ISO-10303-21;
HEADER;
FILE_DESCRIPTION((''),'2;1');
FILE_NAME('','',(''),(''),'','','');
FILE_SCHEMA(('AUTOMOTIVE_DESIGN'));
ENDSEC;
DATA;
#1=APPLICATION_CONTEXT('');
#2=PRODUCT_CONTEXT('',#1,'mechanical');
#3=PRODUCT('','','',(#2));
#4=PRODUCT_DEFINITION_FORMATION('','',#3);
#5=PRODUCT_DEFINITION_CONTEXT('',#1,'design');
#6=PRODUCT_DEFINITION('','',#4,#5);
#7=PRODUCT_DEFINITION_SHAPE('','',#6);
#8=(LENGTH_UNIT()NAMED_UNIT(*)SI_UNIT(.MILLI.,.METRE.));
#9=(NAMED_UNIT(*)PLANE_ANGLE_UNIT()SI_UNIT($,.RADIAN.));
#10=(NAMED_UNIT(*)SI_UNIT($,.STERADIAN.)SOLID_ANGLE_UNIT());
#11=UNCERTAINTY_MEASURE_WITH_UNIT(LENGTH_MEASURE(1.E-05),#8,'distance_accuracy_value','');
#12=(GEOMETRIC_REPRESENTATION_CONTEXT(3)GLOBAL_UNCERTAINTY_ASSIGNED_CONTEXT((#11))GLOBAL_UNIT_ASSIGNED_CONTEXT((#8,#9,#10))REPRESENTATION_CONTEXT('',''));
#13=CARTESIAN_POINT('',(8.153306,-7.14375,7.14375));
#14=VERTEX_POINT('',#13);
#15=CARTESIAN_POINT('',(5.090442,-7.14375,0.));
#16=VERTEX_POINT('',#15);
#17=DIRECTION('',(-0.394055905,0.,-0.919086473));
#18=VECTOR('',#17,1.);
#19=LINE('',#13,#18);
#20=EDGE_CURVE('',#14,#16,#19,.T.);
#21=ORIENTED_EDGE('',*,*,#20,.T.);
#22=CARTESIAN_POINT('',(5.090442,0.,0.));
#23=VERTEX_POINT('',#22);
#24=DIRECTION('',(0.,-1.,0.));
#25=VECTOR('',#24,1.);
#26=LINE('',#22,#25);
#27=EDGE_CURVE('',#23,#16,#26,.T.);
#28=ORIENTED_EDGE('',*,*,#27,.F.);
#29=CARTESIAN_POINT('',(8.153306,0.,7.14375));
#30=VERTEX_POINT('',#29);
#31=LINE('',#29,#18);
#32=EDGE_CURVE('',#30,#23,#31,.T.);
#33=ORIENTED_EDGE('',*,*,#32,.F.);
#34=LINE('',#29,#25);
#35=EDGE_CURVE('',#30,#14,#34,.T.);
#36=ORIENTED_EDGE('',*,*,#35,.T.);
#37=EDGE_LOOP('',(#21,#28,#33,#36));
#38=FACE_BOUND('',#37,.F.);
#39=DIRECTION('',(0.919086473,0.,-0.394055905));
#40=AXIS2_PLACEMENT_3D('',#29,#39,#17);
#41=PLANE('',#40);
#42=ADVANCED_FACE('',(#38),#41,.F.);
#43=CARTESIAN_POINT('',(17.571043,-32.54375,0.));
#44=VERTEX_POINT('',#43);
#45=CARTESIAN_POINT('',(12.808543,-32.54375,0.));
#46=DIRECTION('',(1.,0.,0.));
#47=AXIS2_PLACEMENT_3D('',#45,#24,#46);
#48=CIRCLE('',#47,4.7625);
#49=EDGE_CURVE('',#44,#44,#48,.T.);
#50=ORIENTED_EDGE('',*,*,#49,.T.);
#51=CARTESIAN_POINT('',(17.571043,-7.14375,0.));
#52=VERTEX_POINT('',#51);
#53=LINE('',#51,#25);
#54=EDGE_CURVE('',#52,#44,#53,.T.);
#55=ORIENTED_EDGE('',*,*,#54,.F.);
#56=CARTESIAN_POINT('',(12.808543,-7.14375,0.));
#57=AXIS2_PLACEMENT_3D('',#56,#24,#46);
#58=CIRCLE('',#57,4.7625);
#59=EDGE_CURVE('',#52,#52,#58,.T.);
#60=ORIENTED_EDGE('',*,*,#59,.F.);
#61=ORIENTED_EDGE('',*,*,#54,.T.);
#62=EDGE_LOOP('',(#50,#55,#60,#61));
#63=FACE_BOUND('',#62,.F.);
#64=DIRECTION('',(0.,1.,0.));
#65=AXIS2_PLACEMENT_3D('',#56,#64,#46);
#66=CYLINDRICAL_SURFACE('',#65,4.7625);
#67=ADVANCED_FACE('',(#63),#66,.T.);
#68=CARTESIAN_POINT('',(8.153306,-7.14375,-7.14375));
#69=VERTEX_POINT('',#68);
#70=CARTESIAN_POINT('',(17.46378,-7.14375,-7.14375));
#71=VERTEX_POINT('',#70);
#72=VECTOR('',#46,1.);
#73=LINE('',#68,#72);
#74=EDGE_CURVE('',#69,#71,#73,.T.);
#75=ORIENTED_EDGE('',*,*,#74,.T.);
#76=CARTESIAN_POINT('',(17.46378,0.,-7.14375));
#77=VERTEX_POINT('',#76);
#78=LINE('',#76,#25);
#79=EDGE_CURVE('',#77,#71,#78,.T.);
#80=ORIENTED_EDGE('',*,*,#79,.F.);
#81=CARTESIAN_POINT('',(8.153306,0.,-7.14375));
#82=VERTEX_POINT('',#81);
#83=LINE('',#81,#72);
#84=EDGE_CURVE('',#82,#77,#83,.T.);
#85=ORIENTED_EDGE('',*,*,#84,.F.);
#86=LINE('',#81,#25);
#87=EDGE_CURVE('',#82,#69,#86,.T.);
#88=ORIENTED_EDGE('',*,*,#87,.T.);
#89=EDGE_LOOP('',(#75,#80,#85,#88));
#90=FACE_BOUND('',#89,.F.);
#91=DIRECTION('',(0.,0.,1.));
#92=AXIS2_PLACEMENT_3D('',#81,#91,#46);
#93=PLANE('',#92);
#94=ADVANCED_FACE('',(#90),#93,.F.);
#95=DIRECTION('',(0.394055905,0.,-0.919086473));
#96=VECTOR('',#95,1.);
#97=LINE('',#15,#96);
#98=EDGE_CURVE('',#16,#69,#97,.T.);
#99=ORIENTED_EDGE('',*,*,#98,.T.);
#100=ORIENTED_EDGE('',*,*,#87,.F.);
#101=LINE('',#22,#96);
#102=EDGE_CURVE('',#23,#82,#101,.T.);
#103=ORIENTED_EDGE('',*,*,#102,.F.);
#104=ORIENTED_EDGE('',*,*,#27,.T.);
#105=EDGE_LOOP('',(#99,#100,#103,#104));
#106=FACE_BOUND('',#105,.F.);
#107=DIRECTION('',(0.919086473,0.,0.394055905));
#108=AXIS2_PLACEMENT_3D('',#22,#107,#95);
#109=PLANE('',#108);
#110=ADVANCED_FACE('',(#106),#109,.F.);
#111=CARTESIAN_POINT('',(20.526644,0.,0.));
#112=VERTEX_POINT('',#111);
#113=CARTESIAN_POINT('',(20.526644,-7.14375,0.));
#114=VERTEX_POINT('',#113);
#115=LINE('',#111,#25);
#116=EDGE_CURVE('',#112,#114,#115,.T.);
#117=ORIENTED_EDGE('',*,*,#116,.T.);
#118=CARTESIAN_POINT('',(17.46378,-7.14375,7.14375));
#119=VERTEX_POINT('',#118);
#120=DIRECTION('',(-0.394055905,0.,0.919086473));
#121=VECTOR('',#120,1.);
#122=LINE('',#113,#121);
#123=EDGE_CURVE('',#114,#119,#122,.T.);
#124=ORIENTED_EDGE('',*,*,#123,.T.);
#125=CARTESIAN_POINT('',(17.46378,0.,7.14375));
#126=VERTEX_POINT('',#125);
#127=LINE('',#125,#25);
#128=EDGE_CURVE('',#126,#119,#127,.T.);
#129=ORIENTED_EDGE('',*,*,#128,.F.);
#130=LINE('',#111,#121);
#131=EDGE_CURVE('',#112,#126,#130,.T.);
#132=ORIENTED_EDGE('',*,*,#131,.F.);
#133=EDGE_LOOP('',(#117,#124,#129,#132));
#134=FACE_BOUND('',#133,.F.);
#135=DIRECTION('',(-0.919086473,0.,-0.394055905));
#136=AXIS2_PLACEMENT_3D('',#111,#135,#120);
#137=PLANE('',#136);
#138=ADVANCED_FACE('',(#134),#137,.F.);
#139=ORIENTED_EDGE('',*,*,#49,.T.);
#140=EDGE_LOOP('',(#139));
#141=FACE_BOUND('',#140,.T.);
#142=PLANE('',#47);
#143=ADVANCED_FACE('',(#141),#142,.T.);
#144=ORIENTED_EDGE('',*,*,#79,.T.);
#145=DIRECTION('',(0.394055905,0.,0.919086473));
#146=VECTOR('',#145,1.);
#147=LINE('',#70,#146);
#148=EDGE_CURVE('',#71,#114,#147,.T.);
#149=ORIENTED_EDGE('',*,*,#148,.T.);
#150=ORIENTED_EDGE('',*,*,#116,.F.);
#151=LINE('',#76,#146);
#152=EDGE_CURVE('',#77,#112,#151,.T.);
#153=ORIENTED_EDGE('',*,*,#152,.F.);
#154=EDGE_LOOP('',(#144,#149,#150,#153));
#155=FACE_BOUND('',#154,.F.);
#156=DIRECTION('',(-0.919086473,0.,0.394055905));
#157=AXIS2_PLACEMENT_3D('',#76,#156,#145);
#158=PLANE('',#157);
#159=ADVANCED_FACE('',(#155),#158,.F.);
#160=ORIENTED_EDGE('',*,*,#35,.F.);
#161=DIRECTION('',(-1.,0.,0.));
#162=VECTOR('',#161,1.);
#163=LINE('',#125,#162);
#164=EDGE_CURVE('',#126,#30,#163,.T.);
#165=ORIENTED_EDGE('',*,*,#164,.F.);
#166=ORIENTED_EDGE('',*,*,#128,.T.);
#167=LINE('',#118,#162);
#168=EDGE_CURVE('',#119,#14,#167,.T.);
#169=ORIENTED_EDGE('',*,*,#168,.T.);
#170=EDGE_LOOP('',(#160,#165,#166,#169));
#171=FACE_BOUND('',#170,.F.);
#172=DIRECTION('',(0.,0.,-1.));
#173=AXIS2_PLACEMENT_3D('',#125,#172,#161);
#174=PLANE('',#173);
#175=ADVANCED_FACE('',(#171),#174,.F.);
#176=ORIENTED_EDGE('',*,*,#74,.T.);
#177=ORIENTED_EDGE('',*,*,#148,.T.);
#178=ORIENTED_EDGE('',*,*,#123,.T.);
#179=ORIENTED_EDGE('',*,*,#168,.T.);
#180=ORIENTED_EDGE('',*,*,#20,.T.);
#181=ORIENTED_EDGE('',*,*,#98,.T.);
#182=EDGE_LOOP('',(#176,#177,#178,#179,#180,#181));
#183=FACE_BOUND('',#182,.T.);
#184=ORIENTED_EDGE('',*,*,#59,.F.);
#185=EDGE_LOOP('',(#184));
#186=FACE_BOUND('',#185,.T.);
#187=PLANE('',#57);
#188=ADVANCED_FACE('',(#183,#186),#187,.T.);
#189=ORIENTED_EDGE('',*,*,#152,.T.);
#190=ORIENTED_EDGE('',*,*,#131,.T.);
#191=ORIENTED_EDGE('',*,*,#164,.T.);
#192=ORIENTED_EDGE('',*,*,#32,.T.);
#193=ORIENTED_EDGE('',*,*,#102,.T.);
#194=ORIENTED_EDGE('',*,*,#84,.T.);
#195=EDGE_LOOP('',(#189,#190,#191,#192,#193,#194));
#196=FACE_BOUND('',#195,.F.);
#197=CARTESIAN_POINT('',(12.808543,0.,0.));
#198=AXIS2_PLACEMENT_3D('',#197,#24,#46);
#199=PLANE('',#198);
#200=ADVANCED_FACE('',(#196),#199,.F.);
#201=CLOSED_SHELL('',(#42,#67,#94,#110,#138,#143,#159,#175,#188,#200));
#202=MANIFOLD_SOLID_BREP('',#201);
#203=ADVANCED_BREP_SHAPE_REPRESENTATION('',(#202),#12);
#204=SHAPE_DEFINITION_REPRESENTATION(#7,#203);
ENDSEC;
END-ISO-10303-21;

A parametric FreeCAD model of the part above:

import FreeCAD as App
import Part
import Sketcher
from FreeCAD import Vector
Q = App.Units.Quantity

doc = App.newDocument("Part")
body = doc.addObject("PartDesign::Body", "Body")

sketch1 = body.newObject("Sketcher::SketchObject", "Sketch")
sketch1.AttachmentSupport = (doc.getObject("XZ_Plane"), [""])
sketch1.MapMode = "FlatFace"
sketch1.addGeometry([
    Part.LineSegment(Vector(17.46378, 7.14375, 0), Vector(8.153306, 7.14375, 0)),
    Part.LineSegment(Vector(8.153306, 7.14375, 0), Vector(5.090442, 0, 0)),
    Part.LineSegment(Vector(5.090442, 0, 0), Vector(8.153306, -7.14375, 0)),
    Part.LineSegment(Vector(8.153306, -7.14375, 0), Vector(17.46378, -7.14375, 0)),
    Part.LineSegment(Vector(17.46378, -7.14375, 0), Vector(20.526644, 0, 0)),
    Part.LineSegment(Vector(20.526644, 0, 0), Vector(17.46378, 7.14375, 0)),
], False)
sketch1.addConstraint([
    Sketcher.Constraint("Coincident", 0, 2, 1, 1),
    Sketcher.Constraint("Coincident", 1, 2, 2, 1),
    Sketcher.Constraint("Coincident", 2, 2, 3, 1),
    Sketcher.Constraint("Coincident", 3, 2, 4, 1),
    Sketcher.Constraint("Coincident", 4, 2, 5, 1),
    Sketcher.Constraint("Coincident", 5, 2, 0, 1),
    Sketcher.Constraint("Horizontal", 0),
    Sketcher.Constraint("Horizontal", 3),
    Sketcher.Constraint("Symmetric", 0, 2, 2, 2, -1),
    Sketcher.Constraint("PointOnObject", 1, 2, -1),
    Sketcher.Constraint("PointOnObject", 4, 2, -1),
    Sketcher.Constraint("Parallel", 1, 4),
    Sketcher.Constraint("Parallel", 2, 5),
    Sketcher.Constraint("DistanceY", -1, 1, 0, 2, Q("0.28125 in")),
    Sketcher.Constraint("DistanceX", 0, 2, 0, 1, Q("9.310474 mm")),
    Sketcher.Constraint("DistanceX", -1, 1, 3, 2, Q("17.46378 mm")),
    Sketcher.Constraint("Distance", 1, Q("7.772664 mm")),
])
pad1 = body.newObject("PartDesign::Pad", "Pad")
pad1.Profile = sketch1
pad1.Length = Q("0.28125 in")

sketch2 = body.newObject("Sketcher::SketchObject", "Sketch001")
sketch2.AttachmentSupport = (doc.getObject("XZ_Plane"), [""])
sketch2.MapMode = "FlatFace"
sketch2.AttachmentOffset = App.Placement(Vector(0, 0, 0.28125 * 25.4), App.Rotation())
sketch2.addGeometry(Part.Circle(Vector(12.808543, 0, 0), Vector(0, 0, 1), 4.7625), False)
sketch2.addConstraint([
    Sketcher.Constraint("PointOnObject", 0, 3, -1),
    Sketcher.Constraint("Diameter", 0, Q("0.375 in")),
    Sketcher.Constraint("DistanceX", -1, 1, 0, 3, Q("12.808543 mm")),
])
pad2 = body.newObject("PartDesign::Pad", "Pad001")
pad2.Profile = sketch2
pad2.Length = Q("1 in")

doc.recompute()
